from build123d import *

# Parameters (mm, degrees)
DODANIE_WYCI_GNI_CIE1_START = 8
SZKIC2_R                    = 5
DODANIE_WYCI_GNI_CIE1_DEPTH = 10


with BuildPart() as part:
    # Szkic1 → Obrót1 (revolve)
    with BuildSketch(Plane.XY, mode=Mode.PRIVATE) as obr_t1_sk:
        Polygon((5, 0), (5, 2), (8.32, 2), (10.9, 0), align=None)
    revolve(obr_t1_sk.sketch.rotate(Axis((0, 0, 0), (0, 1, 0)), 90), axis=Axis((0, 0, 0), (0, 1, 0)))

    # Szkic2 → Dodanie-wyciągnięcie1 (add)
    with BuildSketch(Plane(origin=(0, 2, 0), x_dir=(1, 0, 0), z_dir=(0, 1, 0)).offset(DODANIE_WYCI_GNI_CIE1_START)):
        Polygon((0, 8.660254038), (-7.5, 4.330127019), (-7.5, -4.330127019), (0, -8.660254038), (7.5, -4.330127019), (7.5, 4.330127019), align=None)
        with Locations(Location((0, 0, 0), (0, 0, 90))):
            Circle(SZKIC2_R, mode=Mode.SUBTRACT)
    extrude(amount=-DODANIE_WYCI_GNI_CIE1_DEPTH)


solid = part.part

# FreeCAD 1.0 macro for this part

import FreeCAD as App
import Part
import Sketcher
Q = App.Units.Quantity


def add_polygon(sketch, points):
    """Adds a closed chain of lines whose ends are joined by coincident constraints."""
    first, n = sketch.GeometryCount, len(points)
    for a, b in zip(points, points[1:] + points[:1]):
        sketch.addGeometry(Part.LineSegment(App.Vector(*a, 0), App.Vector(*b, 0)), False)
    for i in range(n):
        sketch.addConstraint(Sketcher.Constraint("Coincident", first + i, 2, first + (i + 1) % n, 1))

doc = App.newDocument("Part")
params = doc.addObject("Spreadsheet::Sheet", "Params")
for row, (alias, value) in enumerate([
    ("sketch1_height", "2 mm"),
    ("sketch1_width", "5.9 mm"),
    ("sketch1_width2", "3.32 mm"),
    ("revolution_angle", "360 deg"),
    ("sketch2_diameter", "10 mm"),
    ("pad1_length", "10 mm"),
], start=1):
    params.set(f"A{row}", alias)
    params.set(f"B{row}", "=" + value)
    params.setAlias(f"B{row}", alias)

body = doc.addObject("PartDesign::Body", "Body")

sketch1 = doc.addObject("Sketcher::SketchObject", "Sketch")
body.addObject(sketch1)
sketch1.AttachmentSupport = (doc.XY_Plane, [""])
sketch1.MapMode = "FlatFace"
add_polygon(sketch1, [(5, 2), (5, 0), (10.9, 0), (8.3, 2)])
sketch1.addConstraint([
    Sketcher.Constraint("Vertical", 0),
    Sketcher.Constraint("Horizontal", 1),
    Sketcher.Constraint("Horizontal", 3),
    Sketcher.Constraint("PointOnObject", 0, 2, -1),
    Sketcher.Constraint("DistanceY", 0, 2, 0, 1, 2.0),
    Sketcher.Constraint("DistanceX", 1, 1, 1, 2, 5.9),
    Sketcher.Constraint("DistanceX", -1, 1, 0, 2, 5.0),
    Sketcher.Constraint("DistanceX", 3, 2, 3, 1, 3.32),
])
sketch1.setExpression("Constraints[8]", "Params.sketch1_height")
sketch1.setExpression("Constraints[9]", "Params.sketch1_width")
sketch1.setExpression("Constraints[11]", "Params.sketch1_width2")
revolution = doc.addObject("PartDesign::Revolution", "Revolution")
body.addObject(revolution)
revolution.Profile = sketch1
revolution.ReferenceAxis = (sketch1, ["V_Axis"])
revolution.setExpression("Angle", "Params.revolution_angle")

sketch2 = doc.addObject("Sketcher::SketchObject", "Sketch001")
body.addObject(sketch2)
sketch2.AttachmentSupport = (doc.XZ_Plane, [""])
sketch2.MapMode = "FlatFace"
sketch2.AttachmentOffset = App.Placement(App.Vector(0, 0, -10), App.Rotation())
add_polygon(sketch2, [(0, -9), (-8, -4), (-8, 4), (0, 9), (8, 4), (8, -4)])
sketch2.addGeometry(Part.Circle(App.Vector(0, 0, 0), App.Vector(0, 0, 1), 5), False)
sketch2.addConstraint([
    Sketcher.Constraint("Vertical", 1),
    Sketcher.Constraint("Vertical", 4),
    Sketcher.Constraint("Coincident", 6, 3, -1, 1),
    Sketcher.Constraint("Symmetric", 0, 2, 3, 2, -1, 1),
    Sketcher.Constraint("Symmetric", 2, 2, 5, 2, -1, 1),
    Sketcher.Constraint("PointOnObject", 2, 2, -2),
    Sketcher.Constraint("Parallel", 2, 5),
    Sketcher.Constraint("Horizontal", 1, 2, 3, 2),
    Sketcher.Constraint("Diameter", 6, 10.0),
    Sketcher.Constraint("Angle", 0, Q("150 deg")),
    Sketcher.Constraint("DistanceX", 1, 2, 3, 2, 15.0),
    Sketcher.Constraint("DistanceY", 1, 1, 1, 2, 8.660254),
])
sketch2.setExpression("Constraints[14]", "Params.sketch2_diameter")
pad1 = doc.addObject("PartDesign::Pad", "Pad")
body.addObject(pad1)
pad1.Profile = sketch2
pad1.setExpression("Length", "Params.pad1_length")

doc.recompute()
